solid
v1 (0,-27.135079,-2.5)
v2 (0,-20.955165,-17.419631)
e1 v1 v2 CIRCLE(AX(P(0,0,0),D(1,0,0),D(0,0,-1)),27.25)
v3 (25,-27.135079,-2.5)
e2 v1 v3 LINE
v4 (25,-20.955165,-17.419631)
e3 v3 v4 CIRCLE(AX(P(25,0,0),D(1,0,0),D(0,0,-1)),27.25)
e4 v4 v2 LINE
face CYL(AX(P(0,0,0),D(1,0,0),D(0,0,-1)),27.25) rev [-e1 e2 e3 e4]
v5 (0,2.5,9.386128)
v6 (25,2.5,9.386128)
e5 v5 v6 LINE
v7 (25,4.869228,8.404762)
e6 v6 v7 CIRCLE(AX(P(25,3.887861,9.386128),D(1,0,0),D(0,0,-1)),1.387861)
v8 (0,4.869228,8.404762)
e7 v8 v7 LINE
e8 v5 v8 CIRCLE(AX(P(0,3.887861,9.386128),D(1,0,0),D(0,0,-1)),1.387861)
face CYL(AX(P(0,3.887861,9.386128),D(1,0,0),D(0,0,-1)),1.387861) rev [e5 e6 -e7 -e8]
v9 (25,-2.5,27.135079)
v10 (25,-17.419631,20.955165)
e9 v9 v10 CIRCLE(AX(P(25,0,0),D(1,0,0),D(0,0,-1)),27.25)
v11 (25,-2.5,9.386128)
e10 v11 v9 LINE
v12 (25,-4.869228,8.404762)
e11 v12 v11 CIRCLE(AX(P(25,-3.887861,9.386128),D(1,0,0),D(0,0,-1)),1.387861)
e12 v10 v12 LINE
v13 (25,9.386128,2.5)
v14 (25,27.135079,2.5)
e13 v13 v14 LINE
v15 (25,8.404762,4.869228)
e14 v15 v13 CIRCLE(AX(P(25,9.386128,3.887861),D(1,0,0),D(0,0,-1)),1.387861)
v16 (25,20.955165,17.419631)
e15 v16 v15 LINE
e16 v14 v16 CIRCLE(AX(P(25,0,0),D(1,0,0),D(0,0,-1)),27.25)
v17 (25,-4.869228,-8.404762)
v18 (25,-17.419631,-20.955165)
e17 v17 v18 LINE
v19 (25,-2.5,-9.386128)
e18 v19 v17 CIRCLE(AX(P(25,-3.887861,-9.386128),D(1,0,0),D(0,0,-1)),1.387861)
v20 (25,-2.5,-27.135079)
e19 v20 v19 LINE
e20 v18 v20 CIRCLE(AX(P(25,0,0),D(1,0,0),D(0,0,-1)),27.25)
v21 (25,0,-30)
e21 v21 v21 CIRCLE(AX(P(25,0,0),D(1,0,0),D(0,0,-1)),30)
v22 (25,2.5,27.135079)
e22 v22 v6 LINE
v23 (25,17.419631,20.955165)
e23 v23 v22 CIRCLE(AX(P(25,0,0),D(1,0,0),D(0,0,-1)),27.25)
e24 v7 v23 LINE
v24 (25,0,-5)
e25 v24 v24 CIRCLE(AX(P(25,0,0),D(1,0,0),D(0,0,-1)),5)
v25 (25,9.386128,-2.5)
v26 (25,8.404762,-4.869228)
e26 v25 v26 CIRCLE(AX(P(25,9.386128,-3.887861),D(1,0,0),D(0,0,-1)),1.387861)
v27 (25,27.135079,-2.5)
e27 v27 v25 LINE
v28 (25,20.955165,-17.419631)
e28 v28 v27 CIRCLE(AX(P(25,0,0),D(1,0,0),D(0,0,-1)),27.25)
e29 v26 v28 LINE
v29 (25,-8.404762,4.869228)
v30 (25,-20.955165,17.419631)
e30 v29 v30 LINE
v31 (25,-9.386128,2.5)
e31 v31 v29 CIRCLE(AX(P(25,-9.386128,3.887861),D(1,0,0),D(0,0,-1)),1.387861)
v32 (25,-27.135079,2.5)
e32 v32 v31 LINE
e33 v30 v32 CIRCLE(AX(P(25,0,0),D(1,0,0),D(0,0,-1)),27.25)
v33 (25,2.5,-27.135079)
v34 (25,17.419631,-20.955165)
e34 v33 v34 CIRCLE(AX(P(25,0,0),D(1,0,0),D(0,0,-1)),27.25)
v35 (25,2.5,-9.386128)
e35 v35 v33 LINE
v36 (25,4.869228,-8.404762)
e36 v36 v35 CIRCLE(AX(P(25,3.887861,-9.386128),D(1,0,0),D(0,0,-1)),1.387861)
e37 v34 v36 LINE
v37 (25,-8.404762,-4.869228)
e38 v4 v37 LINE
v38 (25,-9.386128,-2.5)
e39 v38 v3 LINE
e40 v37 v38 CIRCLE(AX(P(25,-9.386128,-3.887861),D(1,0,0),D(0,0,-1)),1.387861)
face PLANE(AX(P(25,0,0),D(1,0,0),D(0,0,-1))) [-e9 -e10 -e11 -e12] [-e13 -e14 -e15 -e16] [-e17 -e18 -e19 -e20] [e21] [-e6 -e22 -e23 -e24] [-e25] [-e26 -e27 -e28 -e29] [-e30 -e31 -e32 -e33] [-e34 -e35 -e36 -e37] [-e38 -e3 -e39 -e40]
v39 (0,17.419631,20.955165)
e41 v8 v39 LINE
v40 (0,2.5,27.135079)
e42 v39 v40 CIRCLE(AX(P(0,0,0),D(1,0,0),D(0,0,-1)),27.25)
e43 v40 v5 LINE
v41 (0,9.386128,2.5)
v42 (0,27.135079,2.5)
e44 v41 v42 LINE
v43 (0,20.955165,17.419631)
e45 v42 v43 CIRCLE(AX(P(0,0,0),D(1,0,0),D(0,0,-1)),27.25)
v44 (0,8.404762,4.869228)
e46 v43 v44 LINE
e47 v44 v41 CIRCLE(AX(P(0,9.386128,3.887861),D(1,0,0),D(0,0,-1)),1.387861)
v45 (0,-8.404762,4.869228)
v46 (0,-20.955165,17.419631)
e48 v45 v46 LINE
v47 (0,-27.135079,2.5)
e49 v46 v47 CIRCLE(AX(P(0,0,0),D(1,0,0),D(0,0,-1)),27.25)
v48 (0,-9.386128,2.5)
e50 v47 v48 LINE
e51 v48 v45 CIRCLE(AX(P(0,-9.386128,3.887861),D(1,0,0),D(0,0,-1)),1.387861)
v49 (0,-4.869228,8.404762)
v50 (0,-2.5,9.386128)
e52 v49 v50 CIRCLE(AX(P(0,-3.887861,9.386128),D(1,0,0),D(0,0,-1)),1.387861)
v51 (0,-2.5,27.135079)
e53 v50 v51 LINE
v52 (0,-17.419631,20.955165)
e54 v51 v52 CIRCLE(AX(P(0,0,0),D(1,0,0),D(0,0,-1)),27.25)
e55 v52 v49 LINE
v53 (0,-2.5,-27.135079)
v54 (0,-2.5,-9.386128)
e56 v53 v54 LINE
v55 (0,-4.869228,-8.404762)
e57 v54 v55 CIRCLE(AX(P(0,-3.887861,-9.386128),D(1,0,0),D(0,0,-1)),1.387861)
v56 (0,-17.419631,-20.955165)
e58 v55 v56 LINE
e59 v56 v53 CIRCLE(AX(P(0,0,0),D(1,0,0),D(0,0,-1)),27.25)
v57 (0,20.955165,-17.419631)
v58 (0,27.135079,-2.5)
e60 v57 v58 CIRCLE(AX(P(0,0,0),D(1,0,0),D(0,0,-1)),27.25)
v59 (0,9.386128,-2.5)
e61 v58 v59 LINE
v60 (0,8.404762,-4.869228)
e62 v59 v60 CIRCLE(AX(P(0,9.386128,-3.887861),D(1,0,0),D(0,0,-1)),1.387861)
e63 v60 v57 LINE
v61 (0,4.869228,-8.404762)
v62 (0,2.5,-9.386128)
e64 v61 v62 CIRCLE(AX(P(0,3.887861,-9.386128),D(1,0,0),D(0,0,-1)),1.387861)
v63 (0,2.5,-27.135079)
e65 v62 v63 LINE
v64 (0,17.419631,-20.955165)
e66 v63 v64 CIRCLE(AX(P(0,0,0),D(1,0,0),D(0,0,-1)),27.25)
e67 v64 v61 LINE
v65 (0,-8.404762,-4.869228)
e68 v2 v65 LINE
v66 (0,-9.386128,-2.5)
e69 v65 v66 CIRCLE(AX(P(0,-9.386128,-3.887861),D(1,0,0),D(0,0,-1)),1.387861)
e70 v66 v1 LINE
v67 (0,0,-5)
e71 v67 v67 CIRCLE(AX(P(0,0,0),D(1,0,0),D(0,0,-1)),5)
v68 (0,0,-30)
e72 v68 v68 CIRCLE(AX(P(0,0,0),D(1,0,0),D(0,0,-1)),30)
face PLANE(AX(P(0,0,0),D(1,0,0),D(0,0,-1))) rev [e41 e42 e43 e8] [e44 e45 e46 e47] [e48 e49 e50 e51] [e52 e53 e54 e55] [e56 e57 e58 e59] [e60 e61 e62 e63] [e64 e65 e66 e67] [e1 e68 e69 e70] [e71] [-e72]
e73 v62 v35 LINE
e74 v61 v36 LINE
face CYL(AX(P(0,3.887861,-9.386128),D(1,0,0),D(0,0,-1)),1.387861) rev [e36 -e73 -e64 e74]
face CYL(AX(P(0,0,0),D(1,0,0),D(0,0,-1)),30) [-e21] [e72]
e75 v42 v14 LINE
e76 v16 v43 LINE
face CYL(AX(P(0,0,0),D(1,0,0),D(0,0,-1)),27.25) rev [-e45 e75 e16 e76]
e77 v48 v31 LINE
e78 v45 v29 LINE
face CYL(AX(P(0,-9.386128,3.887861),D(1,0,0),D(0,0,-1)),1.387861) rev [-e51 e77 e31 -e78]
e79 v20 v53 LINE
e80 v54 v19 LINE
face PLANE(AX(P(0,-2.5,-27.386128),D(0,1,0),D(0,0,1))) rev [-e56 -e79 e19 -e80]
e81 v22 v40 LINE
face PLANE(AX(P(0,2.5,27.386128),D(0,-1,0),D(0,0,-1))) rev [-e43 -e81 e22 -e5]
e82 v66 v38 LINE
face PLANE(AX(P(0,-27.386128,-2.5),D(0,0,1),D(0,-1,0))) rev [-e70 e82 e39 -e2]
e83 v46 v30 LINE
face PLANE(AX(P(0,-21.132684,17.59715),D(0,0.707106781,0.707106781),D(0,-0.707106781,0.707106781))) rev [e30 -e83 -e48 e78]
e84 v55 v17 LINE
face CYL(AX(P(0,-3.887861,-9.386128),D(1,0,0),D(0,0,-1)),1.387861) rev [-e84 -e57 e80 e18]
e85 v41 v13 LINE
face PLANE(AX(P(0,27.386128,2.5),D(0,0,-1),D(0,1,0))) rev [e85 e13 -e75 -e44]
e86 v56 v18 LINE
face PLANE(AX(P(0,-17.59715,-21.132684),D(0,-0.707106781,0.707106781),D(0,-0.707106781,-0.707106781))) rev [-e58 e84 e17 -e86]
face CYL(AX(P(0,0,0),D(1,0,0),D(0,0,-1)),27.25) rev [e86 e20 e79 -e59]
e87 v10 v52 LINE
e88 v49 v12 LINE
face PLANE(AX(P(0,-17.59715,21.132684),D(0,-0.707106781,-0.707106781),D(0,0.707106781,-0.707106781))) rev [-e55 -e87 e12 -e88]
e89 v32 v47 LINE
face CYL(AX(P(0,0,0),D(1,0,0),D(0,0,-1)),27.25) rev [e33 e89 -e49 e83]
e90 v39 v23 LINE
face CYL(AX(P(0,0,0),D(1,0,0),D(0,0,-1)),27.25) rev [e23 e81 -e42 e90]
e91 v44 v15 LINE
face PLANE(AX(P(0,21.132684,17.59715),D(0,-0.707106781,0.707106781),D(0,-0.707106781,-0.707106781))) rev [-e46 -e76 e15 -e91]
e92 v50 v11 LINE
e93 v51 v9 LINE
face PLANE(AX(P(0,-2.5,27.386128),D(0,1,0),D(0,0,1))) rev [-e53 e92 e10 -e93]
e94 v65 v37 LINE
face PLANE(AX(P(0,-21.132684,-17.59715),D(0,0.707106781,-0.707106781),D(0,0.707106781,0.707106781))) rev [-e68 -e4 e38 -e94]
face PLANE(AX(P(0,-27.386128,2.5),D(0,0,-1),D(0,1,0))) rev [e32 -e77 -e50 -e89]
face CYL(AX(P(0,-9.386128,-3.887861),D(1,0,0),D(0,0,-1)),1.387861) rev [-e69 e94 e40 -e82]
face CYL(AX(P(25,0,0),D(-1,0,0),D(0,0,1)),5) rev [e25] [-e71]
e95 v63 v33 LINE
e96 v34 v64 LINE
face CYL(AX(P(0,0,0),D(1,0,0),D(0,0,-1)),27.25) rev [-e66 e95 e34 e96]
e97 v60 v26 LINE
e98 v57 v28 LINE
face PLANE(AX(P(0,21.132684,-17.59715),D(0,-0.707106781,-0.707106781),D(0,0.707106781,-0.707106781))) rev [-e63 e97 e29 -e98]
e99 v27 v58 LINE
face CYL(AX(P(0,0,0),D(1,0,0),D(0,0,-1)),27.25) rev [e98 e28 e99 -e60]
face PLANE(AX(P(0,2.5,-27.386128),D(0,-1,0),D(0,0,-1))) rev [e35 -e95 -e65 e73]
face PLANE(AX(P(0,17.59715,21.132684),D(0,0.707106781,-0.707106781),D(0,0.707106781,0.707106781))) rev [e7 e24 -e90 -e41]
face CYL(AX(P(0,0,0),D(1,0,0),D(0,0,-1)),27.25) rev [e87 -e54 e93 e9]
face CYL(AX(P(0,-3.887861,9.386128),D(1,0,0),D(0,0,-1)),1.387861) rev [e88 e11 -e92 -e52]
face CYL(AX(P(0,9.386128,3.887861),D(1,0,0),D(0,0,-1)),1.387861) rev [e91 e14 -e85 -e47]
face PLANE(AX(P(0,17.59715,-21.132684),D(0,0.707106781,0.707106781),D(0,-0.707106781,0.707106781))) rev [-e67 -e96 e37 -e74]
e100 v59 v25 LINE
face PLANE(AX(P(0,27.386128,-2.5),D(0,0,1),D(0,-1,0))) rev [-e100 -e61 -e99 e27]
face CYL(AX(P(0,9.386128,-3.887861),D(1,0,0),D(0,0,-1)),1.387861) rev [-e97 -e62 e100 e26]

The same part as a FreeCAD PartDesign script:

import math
import FreeCAD as App
import Part
import Sketcher
Q = App.Units.Quantity

doc = App.newDocument("Part")
body = doc.addObject("PartDesign::Body", "Body")

# Sketch on YZ plane
sketch1 = doc.addObject("Sketcher::SketchObject", "Sketch")
body.addObject(sketch1)
sketch1.AttachmentSupport = (doc.YZ_Plane, [""])
sketch1.MapMode = "FlatFace"
sketch1.addGeometry(Part.Circle(App.Vector(0, 0, 0), App.Vector(0, 0, 1), 27.5), False)
sketch1.addGeometry(Part.Circle(App.Vector(0, 0, 0), App.Vector(0, 0, 1), 5), False)
sketch1.addConstraint(Sketcher.Constraint("Coincident", 0, 3, -1, 1))
sketch1.addConstraint(Sketcher.Constraint("Coincident", 1, 3, -1, 1))
sketch1.addConstraint(Sketcher.Constraint("Diameter", 0, Q("55 mm")))
sketch1.addConstraint(Sketcher.Constraint("Diameter", 1, Q("10 mm")))
pad1 = doc.addObject("PartDesign::Pad", "Pad")
body.addObject(pad1)
pad1.Profile = sketch1
pad1.Length = 25

# Sketch on YZ plane
sketch2 = doc.addObject("Sketcher::SketchObject", "Sketch001")
body.addObject(sketch2)
sketch2.AttachmentSupport = (doc.YZ_Plane, [""])
sketch2.MapMode = "FlatFace"
sketch2.AttachmentOffset = App.Placement(App.Vector(0, 0, 25), App.Rotation())
sketch2.addGeometry(Part.LineSegment(App.Vector(9.386128, 2.5, 0), App.Vector(27.386128, 2.5, 0)), False)
sketch2.addGeometry(Part.ArcOfCircle(Part.Circle(App.Vector(6.035534, 2.5, 0), App.Vector(0, 0, 1), 21.350594), math.radians(0), math.radians(45)), False)
sketch2.addGeometry(Part.LineSegment(App.Vector(21.132684, 17.59715, 0), App.Vector(8.404762, 4.869228, 0)), False)
sketch2.addGeometry(Part.ArcOfCircle(Part.Circle(App.Vector(9.386128, 3.887861, 0), App.Vector(0, 0, 1), 1.387861), math.radians(135), math.radians(270)), False)
sketch2.addGeometry(Part.LineSegment(App.Vector(8.404762, -4.869228, 0), App.Vector(21.132684, -17.59715, 0)), False)
sketch2.addGeometry(Part.ArcOfCircle(Part.Circle(App.Vector(6.035534, -2.5, 0), App.Vector(0, 0, 1), 21.350594), math.radians(-45), math.radians(0)), False)
sketch2.addGeometry(Part.LineSegment(App.Vector(27.386128, -2.5, 0), App.Vector(9.386128, -2.5, 0)), False)
sketch2.addGeometry(Part.ArcOfCircle(Part.Circle(App.Vector(9.386128, -3.887861, 0), App.Vector(0, 0, 1), 1.387861), math.radians(90), math.radians(225)), False)
sketch2.addGeometry(Part.LineSegment(App.Vector(2.5, -9.386128, 0), App.Vector(2.5, -27.386128, 0)), False)
sketch2.addGeometry(Part.ArcOfCircle(Part.Circle(App.Vector(2.5, -6.035534, 0), App.Vector(0, 0, 1), 21.350594), math.radians(-90), math.radians(-45)), False)
sketch2.addGeometry(Part.LineSegment(App.Vector(17.59715, -21.132684, 0), App.Vector(4.869228, -8.404762, 0)), False)
sketch2.addGeometry(Part.ArcOfCircle(Part.Circle(App.Vector(3.887861, -9.386128, 0), App.Vector(0, 0, 1), 1.387861), math.radians(45), math.radians(180)), False)
sketch2.addGeometry(Part.LineSegment(App.Vector(-4.869228, -8.404762, 0), App.Vector(-17.59715, -21.132684, 0)), False)
sketch2.addGeometry(Part.ArcOfCircle(Part.Circle(App.Vector(-2.5, -6.035534, 0), App.Vector(0, 0, 1), 21.350594), math.radians(-135), math.radians(-90)), False)
sketch2.addGeometry(Part.LineSegment(App.Vector(-2.5, -27.386128, 0), App.Vector(-2.5, -9.386128, 0)), False)
sketch2.addGeometry(Part.ArcOfCircle(Part.Circle(App.Vector(-3.887861, -9.386128, 0), App.Vector(0, 0, 1), 1.387861), math.radians(0), math.radians(135)), False)
sketch2.addGeometry(Part.LineSegment(App.Vector(-9.386128, -2.5, 0), App.Vector(-27.386128, -2.5, 0)), False)
sketch2.addGeometry(Part.ArcOfCircle(Part.Circle(App.Vector(-6.035534, -2.5, 0), App.Vector(0, 0, 1), 21.350594), math.radians(180), math.radians(225)), False)
sketch2.addGeometry(Part.LineSegment(App.Vector(-21.132684, -17.59715, 0), App.Vector(-8.404762, -4.869228, 0)), False)
sketch2.addGeometry(Part.ArcOfCircle(Part.Circle(App.Vector(-9.386128, -3.887861, 0), App.Vector(0, 0, 1), 1.387861), math.radians(-45), math.radians(90)), False)
sketch2.addGeometry(Part.LineSegment(App.Vector(-8.404762, 4.869228, 0), App.Vector(-21.132684, 17.59715, 0)), False)
sketch2.addGeometry(Part.ArcOfCircle(Part.Circle(App.Vector(-6.035534, 2.5, 0), App.Vector(0, 0, 1), 21.350594), math.radians(135), math.radians(180)), False)
sketch2.addGeometry(Part.LineSegment(App.Vector(-27.386128, 2.5, 0), App.Vector(-9.386128, 2.5, 0)), False)
sketch2.addGeometry(Part.ArcOfCircle(Part.Circle(App.Vector(-9.386128, 3.887861, 0), App.Vector(0, 0, 1), 1.387861), math.radians(-90), math.radians(45)), False)
sketch2.addGeometry(Part.LineSegment(App.Vector(-2.5, 9.386128, 0), App.Vector(-2.5, 27.386128, 0)), False)
sketch2.addGeometry(Part.ArcOfCircle(Part.Circle(App.Vector(-2.5, 6.035534, 0), App.Vector(0, 0, 1), 21.350594), math.radians(90), math.radians(135)), False)
sketch2.addGeometry(Part.LineSegment(App.Vector(-17.59715, 21.132684, 0), App.Vector(-4.869228, 8.404762, 0)), False)
sketch2.addGeometry(Part.ArcOfCircle(Part.Circle(App.Vector(-3.887861, 9.386128, 0), App.Vector(0, 0, 1), 1.387861), math.radians(-135), math.radians(0)), False)
sketch2.addGeometry(Part.LineSegment(App.Vector(4.869228, 8.404762, 0), App.Vector(17.59715, 21.132684, 0)), False)
sketch2.addGeometry(Part.ArcOfCircle(Part.Circle(App.Vector(2.5, 6.035534, 0), App.Vector(0, 0, 1), 21.350594), math.radians(45), math.radians(90)), False)
sketch2.addGeometry(Part.LineSegment(App.Vector(2.5, 27.386128, 0), App.Vector(2.5, 9.386128, 0)), False)
sketch2.addGeometry(Part.ArcOfCircle(Part.Circle(App.Vector(3.887861, 9.386128, 0), App.Vector(0, 0, 1), 1.387861), math.radians(-180), math.radians(-45)), False)
sketch2.addConstraint(Sketcher.Constraint("Coincident", 0, 2, 1, 1))
sketch2.addConstraint(Sketcher.Constraint("Coincident", 1, 2, 2, 1))
sketch2.addConstraint(Sketcher.Constraint("Tangent", 2, 2, 3, 1))
sketch2.addConstraint(Sketcher.Constraint("Tangent", 3, 2, 0, 1))
sketch2.addConstraint(Sketcher.Constraint("Coincident", 4, 2, 5, 1))
sketch2.addConstraint(Sketcher.Constraint("Coincident", 5, 2, 6, 1))
sketch2.addConstraint(Sketcher.Constraint("Tangent", 6, 2, 7, 1))
sketch2.addConstraint(Sketcher.Constraint("Tangent", 7, 2, 4, 1))
sketch2.addConstraint(Sketcher.Constraint("Coincident", 8, 2, 9, 1))
sketch2.addConstraint(Sketcher.Constraint("Coincident", 9, 2, 10, 1))
sketch2.addConstraint(Sketcher.Constraint("Tangent", 10, 2, 11, 1))
sketch2.addConstraint(Sketcher.Constraint("Tangent", 11, 2, 8, 1))
sketch2.addConstraint(Sketcher.Constraint("Coincident", 12, 2, 13, 1))
sketch2.addConstraint(Sketcher.Constraint("Coincident", 13, 2, 14, 1))
sketch2.addConstraint(Sketcher.Constraint("Tangent", 14, 2, 15, 1))
sketch2.addConstraint(Sketcher.Constraint("Tangent", 15, 2, 12, 1))
sketch2.addConstraint(Sketcher.Constraint("Coincident", 16, 2, 17, 1))
sketch2.addConstraint(Sketcher.Constraint("Coincident", 17, 2, 18, 1))
sketch2.addConstraint(Sketcher.Constraint("Tangent", 18, 2, 19, 1))
sketch2.addConstraint(Sketcher.Constraint("Tangent", 19, 2, 16, 1))
sketch2.addConstraint(Sketcher.Constraint("Coincident", 20, 2, 21, 1))
sketch2.addConstraint(Sketcher.Constraint("Coincident", 21, 2, 22, 1))
sketch2.addConstraint(Sketcher.Constraint("Tangent", 22, 2, 23, 1))
sketch2.addConstraint(Sketcher.Constraint("Tangent", 23, 2, 20, 1))
sketch2.addConstraint(Sketcher.Constraint("Coincident", 24, 2, 25, 1))
sketch2.addConstraint(Sketcher.Constraint("Coincident", 25, 2, 26, 1))
sketch2.addConstraint(Sketcher.Constraint("Tangent", 26, 2, 27, 1))
sketch2.addConstraint(Sketcher.Constraint("Tangent", 27, 2, 24, 1))
sketch2.addConstraint(Sketcher.Constraint("Coincident", 28, 2, 29, 1))
sketch2.addConstraint(Sketcher.Constraint("Coincident", 29, 2, 30, 1))
sketch2.addConstraint(Sketcher.Constraint("Tangent", 30, 2, 31, 1))
sketch2.addConstraint(Sketcher.Constraint("Tangent", 31, 2, 28, 1))
sketch2.addConstraint(Sketcher.Constraint("Horizontal", 0))
sketch2.addConstraint(Sketcher.Constraint("Horizontal", 6))
sketch2.addConstraint(Sketcher.Constraint("Vertical", 8))
sketch2.addConstraint(Sketcher.Constraint("Vertical", 14))
sketch2.addConstraint(Sketcher.Constraint("Horizontal", 16))
sketch2.addConstraint(Sketcher.Constraint("Horizontal", 22))
sketch2.addConstraint(Sketcher.Constraint("Vertical", 24))
sketch2.addConstraint(Sketcher.Constraint("Vertical", 30))
sketch2.addConstraint(Sketcher.Constraint("Equal", 1, 5))
sketch2.addConstraint(Sketcher.Constraint("Equal", 3, 7))
sketch2.addConstraint(Sketcher.Constraint("Equal", 5, 9))
sketch2.addConstraint(Sketcher.Constraint("Equal", 7, 11))
sketch2.addConstraint(Sketcher.Constraint("Equal", 9, 13))
sketch2.addConstraint(Sketcher.Constraint("Equal", 11, 15))
sketch2.addConstraint(Sketcher.Constraint("Equal", 13, 17))
sketch2.addConstraint(Sketcher.Constraint("Equal", 15, 19))
sketch2.addConstraint(Sketcher.Constraint("Equal", 17, 21))
sketch2.addConstraint(Sketcher.Constraint("Equal", 19, 23))
sketch2.addConstraint(Sketcher.Constraint("Equal", 21, 25))
sketch2.addConstraint(Sketcher.Constraint("Equal", 23, 27))
sketch2.addConstraint(Sketcher.Constraint("Equal", 25, 29))
sketch2.addConstraint(Sketcher.Constraint("Equal", 27, 31))
sketch2.addConstraint(Sketcher.Constraint("Symmetric", 1, 3, 17, 3, -1, 1))
sketch2.addConstraint(Sketcher.Constraint("Symmetric", 3, 3, 19, 3, -1, 1))
sketch2.addConstraint(Sketcher.Constraint("Symmetric", 5, 3, 21, 3, -1, 1))
sketch2.addConstraint(Sketcher.Constraint("Symmetric", 7, 3, 23, 3, -1, 1))
sketch2.addConstraint(Sketcher.Constraint("Symmetric", 9, 3, 25, 3, -1, 1))
sketch2.addConstraint(Sketcher.Constraint("Symmetric", 11, 3, 27, 3, -1, 1))
sketch2.addConstraint(Sketcher.Constraint("Symmetric", 13, 3, 29, 3, -1, 1))
sketch2.addConstraint(Sketcher.Constraint("Symmetric", 15, 3, 31, 3, -1, 1))
sketch2.addConstraint(Sketcher.Constraint("Symmetric", 9, 3, 13, 3, -2))
sketch2.addConstraint(Sketcher.Constraint("Symmetric", 11, 3, 15, 3, -2))
sketch2.addConstraint(Sketcher.Constraint("Symmetric", 5, 3, 17, 3, -2))
sketch2.addConstraint(Sketcher.Constraint("Symmetric", 7, 3, 19, 3, -2))
sketch2.addConstraint(Sketcher.Constraint("Perpendicular", 2, 4))
sketch2.addConstraint(Sketcher.Constraint("Parallel", 4, 10))
sketch2.addConstraint(Sketcher.Constraint("Perpendicular", 10, 12))
sketch2.addConstraint(Sketcher.Constraint("Parallel", 12, 18))
sketch2.addConstraint(Sketcher.Constraint("Perpendicular", 18, 20))
sketch2.addConstraint(Sketcher.Constraint("Parallel", 20, 26))
sketch2.addConstraint(Sketcher.Constraint("Perpendicular", 26, 28))
sketch2.addConstraint(Sketcher.Constraint("Horizontal", 21, 3, 0, 2))
sketch2.addConstraint(Sketcher.Constraint("Horizontal", 9, 2, 12, 2))
sketch2.addConstraint(Sketcher.Constraint("Vertical", 29, 3, 8, 2))
sketch2.addConstraint(Sketcher.Constraint("Equal", 22, 8))
sketch2.addConstraint(Sketcher.Constraint("DistanceX", 0, 1, 0, 2, Q("18 mm")))
sketch2.addConstraint(Sketcher.Constraint("Distance", 2, Q("18 mm")))
sketch2.addConstraint(Sketcher.Constraint("DistanceY", 5, 3, 1, 3, Q("5 mm")))
sketch2.addConstraint(Sketcher.Constraint("DistanceX", 13, 3, 9, 3, Q("5 mm")))
sketch2.addConstraint(Sketcher.Constraint("Radius", 3, Q("1.387861 mm")))
sketch2.addConstraint(Sketcher.Constraint("DistanceX", 31, 3, 2, 2, Q("4.5169 mm")))
sketch2.addConstraint(Sketcher.Constraint("DistanceY", 2, 2, 31, 3, Q("4.5169 mm")))
pocket1 = doc.addObject("PartDesign::Pocket", "Pocket")
body.addObject(pocket1)
pocket1.Profile = sketch2
pocket1.Length = 25

# Sketch on YZ plane
sketch3 = doc.addObject("Sketcher::SketchObject", "Sketch002")
body.addObject(sketch3)
sketch3.AttachmentSupport = (doc.YZ_Plane, [""])
sketch3.MapMode = "FlatFace"
sketch3.AttachmentOffset = App.Placement(App.Vector(0, 0, 25), App.Rotation())
sketch3.addGeometry(Part.Circle(App.Vector(0, 0, 0), App.Vector(0, 0, 1), 30), False)
sketch3.addGeometry(Part.Circle(App.Vector(0, 0, 0), App.Vector(0, 0, 1), 27.25), False)
sketch3.addConstraint(Sketcher.Constraint("Coincident", 0, 3, -1, 1))
sketch3.addConstraint(Sketcher.Constraint("Coincident", 1, 3, -1, 1))
sketch3.addConstraint(Sketcher.Constraint("Diameter", 0, Q("60 mm")))
sketch3.addConstraint(Sketcher.Constraint("Diameter", 1, Q("54.5 mm")))
pad2 = doc.addObject("PartDesign::Pad", "Pad001")
body.addObject(pad2)
pad2.Profile = sketch3
pad2.Length = 25
pad2.Reversed = True

doc.recompute()
